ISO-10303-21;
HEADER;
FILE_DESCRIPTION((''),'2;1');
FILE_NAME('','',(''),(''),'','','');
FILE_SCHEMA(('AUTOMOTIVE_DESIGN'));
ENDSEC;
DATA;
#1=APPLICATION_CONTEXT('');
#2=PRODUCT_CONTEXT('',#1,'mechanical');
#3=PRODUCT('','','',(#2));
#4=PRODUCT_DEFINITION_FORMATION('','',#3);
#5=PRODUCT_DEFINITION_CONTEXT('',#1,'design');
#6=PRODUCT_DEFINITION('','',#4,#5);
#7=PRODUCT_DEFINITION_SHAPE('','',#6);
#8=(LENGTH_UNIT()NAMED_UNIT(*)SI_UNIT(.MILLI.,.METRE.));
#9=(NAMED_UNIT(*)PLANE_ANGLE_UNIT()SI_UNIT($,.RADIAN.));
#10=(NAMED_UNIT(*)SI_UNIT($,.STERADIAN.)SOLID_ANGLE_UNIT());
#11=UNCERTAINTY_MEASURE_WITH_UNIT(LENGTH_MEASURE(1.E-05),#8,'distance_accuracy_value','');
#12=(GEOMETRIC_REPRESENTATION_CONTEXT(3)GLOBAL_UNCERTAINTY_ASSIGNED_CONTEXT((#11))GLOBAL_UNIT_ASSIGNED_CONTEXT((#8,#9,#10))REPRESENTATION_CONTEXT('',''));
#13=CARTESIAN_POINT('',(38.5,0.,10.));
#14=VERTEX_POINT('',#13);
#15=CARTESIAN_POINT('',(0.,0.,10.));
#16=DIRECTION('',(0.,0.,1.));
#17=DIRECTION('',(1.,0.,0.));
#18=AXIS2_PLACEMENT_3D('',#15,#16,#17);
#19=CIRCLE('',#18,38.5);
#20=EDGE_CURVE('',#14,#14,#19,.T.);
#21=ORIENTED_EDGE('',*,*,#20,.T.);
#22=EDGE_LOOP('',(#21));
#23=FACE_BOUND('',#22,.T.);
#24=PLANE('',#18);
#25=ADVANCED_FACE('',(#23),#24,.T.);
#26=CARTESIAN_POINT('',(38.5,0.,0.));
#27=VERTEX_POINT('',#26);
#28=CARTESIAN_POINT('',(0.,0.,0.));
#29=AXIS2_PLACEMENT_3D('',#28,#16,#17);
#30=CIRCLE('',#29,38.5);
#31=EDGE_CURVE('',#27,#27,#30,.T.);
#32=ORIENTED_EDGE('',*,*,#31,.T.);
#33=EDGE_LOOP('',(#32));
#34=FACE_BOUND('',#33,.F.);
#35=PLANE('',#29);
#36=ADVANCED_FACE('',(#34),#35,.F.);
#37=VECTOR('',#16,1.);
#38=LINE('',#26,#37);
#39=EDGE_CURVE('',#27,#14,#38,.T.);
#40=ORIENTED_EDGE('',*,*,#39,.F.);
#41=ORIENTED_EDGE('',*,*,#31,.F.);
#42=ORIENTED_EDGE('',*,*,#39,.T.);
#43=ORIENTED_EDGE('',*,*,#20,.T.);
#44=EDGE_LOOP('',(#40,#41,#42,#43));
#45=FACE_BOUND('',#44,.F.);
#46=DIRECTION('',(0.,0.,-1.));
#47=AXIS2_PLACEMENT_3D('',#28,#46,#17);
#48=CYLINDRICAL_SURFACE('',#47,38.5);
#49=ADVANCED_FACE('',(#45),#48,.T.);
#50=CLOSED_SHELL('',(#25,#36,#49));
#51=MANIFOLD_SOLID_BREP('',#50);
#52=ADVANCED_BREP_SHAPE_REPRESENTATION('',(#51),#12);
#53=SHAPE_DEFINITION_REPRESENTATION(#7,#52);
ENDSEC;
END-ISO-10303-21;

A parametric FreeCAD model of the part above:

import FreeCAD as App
import Part
import Sketcher

V = App.Vector
Q = App.Units.Quantity

doc = App.newDocument("Part")
body = doc.addObject("PartDesign::Body", "Body")

# Sketch on XY plane
sketch1 = doc.addObject("Sketcher::SketchObject", "Sketch")
body.addObject(sketch1)
sketch1.AttachmentSupport = (doc.XY_Plane, [""])
sketch1.MapMode = "FlatFace"
sketch1.addGeometry(Part.Circle(V(0, 0, 0), V(0, 0, 1), 38), False)
sketch1.addConstraint([
    Sketcher.Constraint("Coincident", 0, 3, -1, 1),
    Sketcher.Constraint("Diameter", 0, Q("77 mm")),
])
pad1 = doc.addObject("PartDesign::Pad", "Pad")
body.addObject(pad1)
pad1.Profile = sketch1
pad1.Length = 10

doc.recompute()
